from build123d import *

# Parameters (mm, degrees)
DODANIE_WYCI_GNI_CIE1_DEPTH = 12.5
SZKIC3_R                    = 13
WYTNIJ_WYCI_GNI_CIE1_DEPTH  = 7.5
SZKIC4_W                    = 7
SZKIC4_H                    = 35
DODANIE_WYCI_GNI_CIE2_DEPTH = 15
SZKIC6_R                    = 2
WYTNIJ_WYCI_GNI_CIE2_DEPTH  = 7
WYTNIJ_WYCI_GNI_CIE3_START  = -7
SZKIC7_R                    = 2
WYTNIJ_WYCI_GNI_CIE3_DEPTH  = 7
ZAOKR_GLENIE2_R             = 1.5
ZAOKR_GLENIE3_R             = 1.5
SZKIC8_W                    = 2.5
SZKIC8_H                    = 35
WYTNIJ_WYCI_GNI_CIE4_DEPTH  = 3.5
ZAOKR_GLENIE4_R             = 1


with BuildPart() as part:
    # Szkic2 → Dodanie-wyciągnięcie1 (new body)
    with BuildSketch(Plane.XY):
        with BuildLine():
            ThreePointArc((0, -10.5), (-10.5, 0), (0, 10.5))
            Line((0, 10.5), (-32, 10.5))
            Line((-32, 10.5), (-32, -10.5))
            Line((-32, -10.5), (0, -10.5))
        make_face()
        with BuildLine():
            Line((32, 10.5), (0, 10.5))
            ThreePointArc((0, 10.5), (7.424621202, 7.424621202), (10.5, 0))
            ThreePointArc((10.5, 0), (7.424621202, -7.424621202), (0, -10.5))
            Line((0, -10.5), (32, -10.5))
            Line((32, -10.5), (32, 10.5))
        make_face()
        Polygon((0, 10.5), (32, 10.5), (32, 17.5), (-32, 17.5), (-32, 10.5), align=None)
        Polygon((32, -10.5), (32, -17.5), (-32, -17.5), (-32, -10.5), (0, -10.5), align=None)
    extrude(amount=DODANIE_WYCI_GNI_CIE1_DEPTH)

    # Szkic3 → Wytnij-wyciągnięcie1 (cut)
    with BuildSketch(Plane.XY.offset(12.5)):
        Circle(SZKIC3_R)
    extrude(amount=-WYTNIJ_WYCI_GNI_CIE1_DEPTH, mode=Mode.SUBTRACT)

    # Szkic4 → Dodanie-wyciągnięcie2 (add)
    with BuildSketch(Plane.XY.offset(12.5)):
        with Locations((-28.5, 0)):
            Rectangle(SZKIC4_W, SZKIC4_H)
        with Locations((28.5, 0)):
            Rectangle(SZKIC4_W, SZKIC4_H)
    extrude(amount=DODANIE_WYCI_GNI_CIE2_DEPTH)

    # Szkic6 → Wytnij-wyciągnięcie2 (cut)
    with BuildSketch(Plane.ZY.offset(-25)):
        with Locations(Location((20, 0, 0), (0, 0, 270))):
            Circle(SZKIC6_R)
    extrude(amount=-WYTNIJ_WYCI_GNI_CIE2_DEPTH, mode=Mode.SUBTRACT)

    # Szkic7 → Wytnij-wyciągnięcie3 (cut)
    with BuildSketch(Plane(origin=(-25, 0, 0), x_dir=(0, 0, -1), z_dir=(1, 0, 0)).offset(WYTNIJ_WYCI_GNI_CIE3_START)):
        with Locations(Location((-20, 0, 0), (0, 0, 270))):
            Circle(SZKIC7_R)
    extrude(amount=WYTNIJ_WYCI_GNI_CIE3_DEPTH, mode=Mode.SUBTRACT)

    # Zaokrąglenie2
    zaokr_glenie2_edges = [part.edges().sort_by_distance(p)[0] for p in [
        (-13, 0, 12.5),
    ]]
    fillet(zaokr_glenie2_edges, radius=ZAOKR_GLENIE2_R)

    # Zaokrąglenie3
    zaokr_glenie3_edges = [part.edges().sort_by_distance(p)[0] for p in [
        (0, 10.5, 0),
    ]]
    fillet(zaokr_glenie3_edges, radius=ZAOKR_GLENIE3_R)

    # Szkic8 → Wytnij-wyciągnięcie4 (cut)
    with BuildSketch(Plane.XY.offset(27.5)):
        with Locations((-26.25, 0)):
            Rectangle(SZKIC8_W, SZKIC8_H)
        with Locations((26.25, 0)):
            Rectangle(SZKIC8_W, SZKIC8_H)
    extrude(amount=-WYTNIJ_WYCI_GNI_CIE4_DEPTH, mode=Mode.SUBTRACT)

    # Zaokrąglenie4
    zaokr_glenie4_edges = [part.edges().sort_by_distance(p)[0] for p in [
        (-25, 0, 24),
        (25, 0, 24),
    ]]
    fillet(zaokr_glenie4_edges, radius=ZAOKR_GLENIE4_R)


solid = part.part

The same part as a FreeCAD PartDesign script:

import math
import FreeCAD as App
import Part
import Sketcher
Q = App.Units.Quantity


def edges_at(feature, points):
    """Names of the edges that pass closest to the given points."""
    edges = feature.Shape.Edges
    near = lambda p: min(range(len(edges)), key=lambda i: edges[i].distToShape(Part.Vertex(*p))[0])
    return sorted({f"Edge{near(p) + 1}" for p in points})


def add_polygon(sketch, points):
    """Adds a closed chain of lines whose ends are joined by coincident constraints."""
    first, n = sketch.GeometryCount, len(points)
    for a, b in zip(points, points[1:] + points[:1]):
        sketch.addGeometry(Part.LineSegment(App.Vector(*a, 0), App.Vector(*b, 0)), False)
    for i in range(n):
        sketch.addConstraint(Sketcher.Constraint("Coincident", first + i, 2, first + (i + 1) % n, 1))

doc = App.newDocument("Part")
body = doc.addObject("PartDesign::Body", "Body")

sketch1 = body.newObject("Sketcher::SketchObject", "Sketch")
sketch1.AttachmentSupport = (doc.getObject("XY_Plane"), [""])
sketch1.MapMode = "FlatFace"
add_polygon(sketch1, [(-32, 18), (-32, -18), (32, -18), (32, 18)])
sketch1.addGeometry(Part.ArcOfCircle(Part.Circle(App.Vector(0, 0, 0), App.Vector(0, 0, 1), 11), math.radians(-90), math.radians(0)), False)
sketch1.addGeometry(Part.ArcOfCircle(Part.Circle(App.Vector(0, 0, 0), App.Vector(0, 0, 1), 10), math.radians(90), math.radians(270)), False)
sketch1.addGeometry(Part.ArcOfCircle(Part.Circle(App.Vector(0, 0, 0), App.Vector(0, 0, 1), 11), math.radians(0), math.radians(90)), False)
sketch1.addConstraint(Sketcher.Constraint("Tangent", 4, 1, 5, 2))
sketch1.addConstraint(Sketcher.Constraint("Tangent", 5, 1, 6, 2))
sketch1.addConstraint(Sketcher.Constraint("Tangent", 6, 1, 4, 2))
sketch1.addConstraint(Sketcher.Constraint("Vertical", 0))
sketch1.addConstraint(Sketcher.Constraint("Horizontal", 1))
sketch1.addConstraint(Sketcher.Constraint("Vertical", 2))
sketch1.addConstraint(Sketcher.Constraint("Horizontal", 3))
sketch1.addConstraint(Sketcher.Constraint("Coincident", 4, 3, -1, 1))
sketch1.addConstraint(Sketcher.Constraint("Symmetric", 0, 2, 2, 2, -1, 1))
sketch1.addConstraint(Sketcher.Constraint("PointOnObject", 4, 1, -2))
sketch1.addConstraint(Sketcher.Constraint("PointOnObject", 5, 1, -2))
sketch1.addConstraint(Sketcher.Constraint("PointOnObject", 6, 1, -1))
sketch1.addConstraint(Sketcher.Constraint("Radius", 4, Q("10.5 mm")))
sketch1.addConstraint(Sketcher.Constraint("DistanceX", 1, 1, 1, 2, Q("64 mm")))
sketch1.addConstraint(Sketcher.Constraint("DistanceY", 0, 2, 0, 1, Q("35 mm")))
pad1 = body.newObject("PartDesign::Pad", "Pad")
pad1.Profile = sketch1
pad1.Length = 12.5

sketch2 = body.newObject("Sketcher::SketchObject", "Sketch001")
sketch2.AttachmentSupport = (doc.getObject("XY_Plane"), [""])
sketch2.MapMode = "FlatFace"
sketch2.AttachmentOffset = App.Placement(App.Vector(0, 0, 12.5), App.Rotation())
sketch2.addGeometry(Part.Circle(App.Vector(0, 0, 0), App.Vector(0, 0, 1), 13), False)
sketch2.addConstraint(Sketcher.Constraint("Coincident", 0, 3, -1, 1))
sketch2.addConstraint(Sketcher.Constraint("Diameter", 0, Q("26 mm")))
pocket1 = body.newObject("PartDesign::Pocket", "Pocket")
pocket1.Profile = sketch2
pocket1.Length = 7.5

sketch3 = body.newObject("Sketcher::SketchObject", "Sketch002")
sketch3.AttachmentSupport = (doc.getObject("XY_Plane"), [""])
sketch3.MapMode = "FlatFace"
sketch3.AttachmentOffset = App.Placement(App.Vector(0, 0, 12.5), App.Rotation())
add_polygon(sketch3, [(-32, 18), (-32, -18), (-25, -18), (-25, 18)])
add_polygon(sketch3, [(25, 18), (25, -18), (32, -18), (32, 18)])
sketch3.addConstraint(Sketcher.Constraint("Vertical", 0))
sketch3.addConstraint(Sketcher.Constraint("Horizontal", 1))
sketch3.addConstraint(Sketcher.Constraint("Vertical", 2))
sketch3.addConstraint(Sketcher.Constraint("Horizontal", 3))
sketch3.addConstraint(Sketcher.Constraint("Vertical", 4))
sketch3.addConstraint(Sketcher.Constraint("Horizontal", 5))
sketch3.addConstraint(Sketcher.Constraint("Vertical", 6))
sketch3.addConstraint(Sketcher.Constraint("Horizontal", 7))
sketch3.addConstraint(Sketcher.Constraint("Symmetric", 2, 2, 4, 2, -1, 1))
sketch3.addConstraint(Sketcher.Constraint("Symmetric", 0, 2, 6, 2, -1, 1))
sketch3.addConstraint(Sketcher.Constraint("Horizontal", 1, 2, 4, 2))
sketch3.addConstraint(Sketcher.Constraint("DistanceX", 1, 1, 1, 2, Q("7 mm")))
sketch3.addConstraint(Sketcher.Constraint("DistanceY", 0, 2, 0, 1, Q("35 mm")))
sketch3.addConstraint(Sketcher.Constraint("DistanceX", 0, 2, -1, 1, Q("32 mm")))
pad2 = body.newObject("PartDesign::Pad", "Pad001")
pad2.Profile = sketch3
pad2.Length = 15

sketch4 = body.newObject("Sketcher::SketchObject", "Sketch003")
sketch4.AttachmentSupport = (doc.getObject("YZ_Plane"), [""])
sketch4.MapMode = "FlatFace"
sketch4.AttachmentOffset = App.Placement(App.Vector(0, 0, 25), App.Rotation())
sketch4.addGeometry(Part.Circle(App.Vector(0, 20, 0), App.Vector(0, 0, 1), 2), False)
sketch4.addConstraint(Sketcher.Constraint("PointOnObject", 0, 3, -2))
sketch4.addConstraint(Sketcher.Constraint("Diameter", 0, Q("4 mm")))
sketch4.addConstraint(Sketcher.Constraint("DistanceY", -1, 1, 0, 3, Q("20 mm")))
pocket2 = body.newObject("PartDesign::Pocket", "Pocket001")
pocket2.Profile = sketch4
pocket2.Length = 7
pocket2.Reversed = True

sketch5 = body.newObject("Sketcher::SketchObject", "Sketch004")
sketch5.AttachmentSupport = (doc.getObject("YZ_Plane"), [""])
sketch5.MapMode = "FlatFace"
sketch5.AttachmentOffset = App.Placement(App.Vector(0, 0, -32), App.Rotation())
sketch5.addGeometry(Part.Circle(App.Vector(0, 20, 0), App.Vector(0, 0, 1), 2), False)
sketch5.addConstraint(Sketcher.Constraint("PointOnObject", 0, 3, -2))
sketch5.addConstraint(Sketcher.Constraint("Diameter", 0, Q("4 mm")))
sketch5.addConstraint(Sketcher.Constraint("DistanceY", -1, 1, 0, 3, Q("20 mm")))
pocket3 = body.newObject("PartDesign::Pocket", "Pocket002")
pocket3.Profile = sketch5
pocket3.Length = 7
pocket3.Reversed = True
doc.recompute()

fillet = body.newObject("PartDesign::Fillet", "Fillet")
fillet.Base = (pocket3, edges_at(pocket3, [(-13, 0, 12.5)]))
fillet.Radius = 1.5
doc.recompute()

fillet2 = body.newObject("PartDesign::Fillet", "Fillet001")
fillet2.Base = (fillet, edges_at(fillet, [(-10.5, 0, 0)]))
fillet2.Radius = 1.5

sketch6 = body.newObject("Sketcher::SketchObject", "Sketch005")
sketch6.AttachmentSupport = (doc.getObject("XY_Plane"), [""])
sketch6.MapMode = "FlatFace"
sketch6.AttachmentOffset = App.Placement(App.Vector(0, 0, 27.5), App.Rotation())
add_polygon(sketch6, [(-27.5, 17.5), (-27.5, -17.5), (-25, -17.5), (-25, 17.5)])
add_polygon(sketch6, [(25, 17.5), (25, -17.5), (27.5, -17.5), (27.5, 17.5)])
sketch6.addConstraint(Sketcher.Constraint("Vertical", 0))
sketch6.addConstraint(Sketcher.Constraint("Horizontal", 1))
sketch6.addConstraint(Sketcher.Constraint("Vertical", 2))
sketch6.addConstraint(Sketcher.Constraint("Horizontal", 3))
sketch6.addConstraint(Sketcher.Constraint("Vertical", 4))
sketch6.addConstraint(Sketcher.Constraint("Horizontal", 5))
sketch6.addConstraint(Sketcher.Constraint("Vertical", 6))
sketch6.addConstraint(Sketcher.Constraint("Horizontal", 7))
sketch6.addConstraint(Sketcher.Constraint("Symmetric", 2, 2, 4, 2, -1, 1))
sketch6.addConstraint(Sketcher.Constraint("Symmetric", 0, 2, 6, 2, -1, 1))
sketch6.addConstraint(Sketcher.Constraint("Horizontal", 1, 2, 4, 2))
sketch6.addConstraint(Sketcher.Constraint("DistanceY", 0, 2, 0, 1, Q("35 mm")))
sketch6.addConstraint(Sketcher.Constraint("DistanceX", 1, 1, 1, 2, Q("2.5 mm")))
sketch6.addConstraint(Sketcher.Constraint("DistanceX", 1, 2, -1, 1, Q("25 mm")))
pocket4 = body.newObject("PartDesign::Pocket", "Pocket003")
pocket4.Profile = sketch6
pocket4.Length = 3.5
doc.recompute()

fillet3 = body.newObject("PartDesign::Fillet", "Fillet002")
fillet3.Base = (pocket4, edges_at(pocket4, [(-25, 0, 24), (25, 0, 24)]))
fillet3.Radius = 1

doc.recompute()
